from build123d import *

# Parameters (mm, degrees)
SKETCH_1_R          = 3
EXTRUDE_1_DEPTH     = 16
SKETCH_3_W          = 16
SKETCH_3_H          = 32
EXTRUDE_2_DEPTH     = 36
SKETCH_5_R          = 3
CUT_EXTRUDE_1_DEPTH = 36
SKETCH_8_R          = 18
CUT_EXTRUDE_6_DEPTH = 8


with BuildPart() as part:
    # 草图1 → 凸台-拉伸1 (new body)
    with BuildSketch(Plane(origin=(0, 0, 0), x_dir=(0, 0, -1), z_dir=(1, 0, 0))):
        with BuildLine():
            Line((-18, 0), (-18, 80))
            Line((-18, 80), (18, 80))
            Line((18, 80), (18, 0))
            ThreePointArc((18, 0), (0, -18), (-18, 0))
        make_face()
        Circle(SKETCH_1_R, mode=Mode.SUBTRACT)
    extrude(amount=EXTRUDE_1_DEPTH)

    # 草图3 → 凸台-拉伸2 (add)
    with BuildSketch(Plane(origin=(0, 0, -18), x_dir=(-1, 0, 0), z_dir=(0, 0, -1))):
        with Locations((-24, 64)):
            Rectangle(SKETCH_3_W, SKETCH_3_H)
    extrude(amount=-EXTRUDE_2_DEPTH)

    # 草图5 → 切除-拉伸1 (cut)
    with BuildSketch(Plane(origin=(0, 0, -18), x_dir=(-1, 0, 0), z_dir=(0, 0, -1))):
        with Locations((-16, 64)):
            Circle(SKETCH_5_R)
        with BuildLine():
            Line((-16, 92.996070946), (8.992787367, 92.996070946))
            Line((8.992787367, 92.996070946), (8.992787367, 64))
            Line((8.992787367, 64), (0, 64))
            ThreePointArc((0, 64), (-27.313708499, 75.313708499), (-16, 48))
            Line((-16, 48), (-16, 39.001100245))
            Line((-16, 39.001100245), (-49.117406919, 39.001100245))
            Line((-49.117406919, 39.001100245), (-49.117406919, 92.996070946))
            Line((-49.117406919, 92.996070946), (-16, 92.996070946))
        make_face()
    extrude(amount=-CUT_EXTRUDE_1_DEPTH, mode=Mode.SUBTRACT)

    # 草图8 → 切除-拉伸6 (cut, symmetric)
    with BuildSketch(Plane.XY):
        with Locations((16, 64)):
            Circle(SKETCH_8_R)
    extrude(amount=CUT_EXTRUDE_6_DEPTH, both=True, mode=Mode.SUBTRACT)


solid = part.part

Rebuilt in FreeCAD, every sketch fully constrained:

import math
import FreeCAD as App
import Part
import Sketcher

V = App.Vector

doc = App.newDocument("Part")
body = doc.addObject("PartDesign::Body", "Body")

sketch1 = doc.addObject("Sketcher::SketchObject", "Sketch")
body.addObject(sketch1)
sketch1.AttachmentSupport = (doc.YZ_Plane, [""])
sketch1.MapMode = "FlatFace"
sketch1.addGeometry([
    Part.LineSegment(V(80, 18, 0), V(0, 18, 0)),
    Part.ArcOfCircle(Part.Circle(V(0, 0, 0), V(0, 0, 1), 18), math.radians(90), math.radians(270)),
    Part.LineSegment(V(0, -18, 0), V(80, -18, 0)),
    Part.LineSegment(V(80, -18, 0), V(80, 18, 0)),
    Part.Circle(V(0, 0, 0), V(0, 0, 1), 3),
], False)
sketch1.addConstraint([
    Sketcher.Constraint("Tangent", 0, 2, 1, 1),
    Sketcher.Constraint("Tangent", 1, 2, 2, 1),
    Sketcher.Constraint("Coincident", 2, 2, 3, 1),
    Sketcher.Constraint("Coincident", 3, 2, 0, 1),
    Sketcher.Constraint("Horizontal", 0),
    Sketcher.Constraint("Horizontal", 2),
    Sketcher.Constraint("Vertical", 3),
    Sketcher.Constraint("Coincident", 1, 3, -1, 1),
    Sketcher.Constraint("Coincident", 4, 3, -1, 1),
    Sketcher.Constraint("Diameter", 4, 6.0),
    Sketcher.Constraint("Radius", 1, 18.0),
    Sketcher.Constraint("DistanceX", 0, 2, 0, 1, 80.0),
])
pad1 = doc.addObject("PartDesign::Pad", "Pad")
body.addObject(pad1)
pad1.Profile = sketch1
pad1.Length = 16

sketch2 = doc.addObject("Sketcher::SketchObject", "Sketch001")
body.addObject(sketch2)
sketch2.AttachmentSupport = (doc.XY_Plane, [""])
sketch2.MapMode = "FlatFace"
sketch2.AttachmentOffset = App.Placement(V(0, 0, -18), App.Rotation())
sketch2.addGeometry([
    Part.LineSegment(V(32, 80, 0), V(32, 48, 0)),
    Part.LineSegment(V(32, 48, 0), V(16, 48, 0)),
    Part.LineSegment(V(16, 48, 0), V(16, 80, 0)),
    Part.LineSegment(V(16, 80, 0), V(32, 80, 0)),
], False)
sketch2.addConstraint([
    Sketcher.Constraint("Coincident", 0, 2, 1, 1),
    Sketcher.Constraint("Coincident", 1, 2, 2, 1),
    Sketcher.Constraint("Coincident", 2, 2, 3, 1),
    Sketcher.Constraint("Coincident", 3, 2, 0, 1),
    Sketcher.Constraint("Vertical", 0),
    Sketcher.Constraint("Horizontal", 1),
    Sketcher.Constraint("Vertical", 2),
    Sketcher.Constraint("Horizontal", 3),
    Sketcher.Constraint("DistanceX", 1, 2, 1, 1, 16.0),
    Sketcher.Constraint("DistanceY", 0, 2, 0, 1, 32.0),
    Sketcher.Constraint("DistanceX", -1, 1, 0, 2, 32.0),
    Sketcher.Constraint("DistanceY", -1, 1, 0, 2, 48.0),
])
pad2 = doc.addObject("PartDesign::Pad", "Pad001")
body.addObject(pad2)
pad2.Profile = sketch2
pad2.Length = 36

sketch3 = doc.addObject("Sketcher::SketchObject", "Sketch002")
body.addObject(sketch3)
sketch3.AttachmentSupport = (doc.XY_Plane, [""])
sketch3.MapMode = "FlatFace"
sketch3.AttachmentOffset = App.Placement(V(0, 0, -18), App.Rotation())
sketch3.addGeometry([
    Part.Circle(V(16, 64, 0), V(0, 0, 1), 3),
    Part.LineSegment(V(-9, 64, 0), V(-9, 93, 0)),
    Part.LineSegment(V(-9, 93, 0), V(49.1, 93, 0)),
    Part.LineSegment(V(49.1, 93, 0), V(49.1, 39, 0)),
    Part.LineSegment(V(49.1, 39, 0), V(16, 39, 0)),
    Part.LineSegment(V(16, 39, 0), V(16, 48, 0)),
    Part.ArcOfCircle(Part.Circle(V(16, 64, 0), V(0, 0, 1), 16), math.radians(-90), math.radians(180)),
    Part.LineSegment(V(0, 64, 0), V(-9, 64, 0)),
], False)
sketch3.addConstraint([
    Sketcher.Constraint("Coincident", 1, 2, 2, 1),
    Sketcher.Constraint("Coincident", 2, 2, 3, 1),
    Sketcher.Constraint("Coincident", 3, 2, 4, 1),
    Sketcher.Constraint("Coincident", 4, 2, 5, 1),
    Sketcher.Constraint("Coincident", 5, 2, 6, 1),
    Sketcher.Constraint("Coincident", 6, 2, 7, 1),
    Sketcher.Constraint("Coincident", 7, 2, 1, 1),
    Sketcher.Constraint("Vertical", 1),
    Sketcher.Constraint("Horizontal", 2),
    Sketcher.Constraint("Vertical", 3),
    Sketcher.Constraint("Horizontal", 4),
    Sketcher.Constraint("Vertical", 5),
    Sketcher.Constraint("Horizontal", 7),
    Sketcher.Constraint("Coincident", 6, 3, 0, 3),
    Sketcher.Constraint("PointOnObject", 6, 2, -2),
    Sketcher.Constraint("Horizontal", 0, 3, 6, 2),
    Sketcher.Constraint("Vertical", 6, 3, 4, 2),
    Sketcher.Constraint("Diameter", 0, 6.0),
    Sketcher.Constraint("Radius", 6, 16.0),
    Sketcher.Constraint("DistanceY", -1, 1, 0, 3, 64.0),
    Sketcher.Constraint("DistanceY", 5, 1, 5, 2, 8.9989),
    Sketcher.Constraint("DistanceY", 1, 1, 1, 2, 28.996071),
    Sketcher.Constraint("DistanceX", 2, 1, 2, 2, 58.110194),
    Sketcher.Constraint("DistanceX", 4, 2, 4, 1, 33.117407),
])
pocket1 = doc.addObject("PartDesign::Pocket", "Pocket")
body.addObject(pocket1)
pocket1.Profile = sketch3
pocket1.Length = 36
pocket1.Reversed = True

sketch4 = doc.addObject("Sketcher::SketchObject", "Sketch003")
body.addObject(sketch4)
sketch4.AttachmentSupport = (doc.XY_Plane, [""])
sketch4.MapMode = "FlatFace"
sketch4.addGeometry(Part.Circle(V(16, 64, 0), V(0, 0, 1), 18), False)
sketch4.addConstraint([
    Sketcher.Constraint("Diameter", 0, 36.0),
    Sketcher.Constraint("DistanceX", -1, 1, 0, 3, 16.0),
    Sketcher.Constraint("DistanceY", -1, 1, 0, 3, 64.0),
])
pocket2 = doc.addObject("PartDesign::Pocket", "Pocket001")
body.addObject(pocket2)
pocket2.Profile = sketch4
pocket2.Length = 16
pocket2.Midplane = True

doc.recompute()
